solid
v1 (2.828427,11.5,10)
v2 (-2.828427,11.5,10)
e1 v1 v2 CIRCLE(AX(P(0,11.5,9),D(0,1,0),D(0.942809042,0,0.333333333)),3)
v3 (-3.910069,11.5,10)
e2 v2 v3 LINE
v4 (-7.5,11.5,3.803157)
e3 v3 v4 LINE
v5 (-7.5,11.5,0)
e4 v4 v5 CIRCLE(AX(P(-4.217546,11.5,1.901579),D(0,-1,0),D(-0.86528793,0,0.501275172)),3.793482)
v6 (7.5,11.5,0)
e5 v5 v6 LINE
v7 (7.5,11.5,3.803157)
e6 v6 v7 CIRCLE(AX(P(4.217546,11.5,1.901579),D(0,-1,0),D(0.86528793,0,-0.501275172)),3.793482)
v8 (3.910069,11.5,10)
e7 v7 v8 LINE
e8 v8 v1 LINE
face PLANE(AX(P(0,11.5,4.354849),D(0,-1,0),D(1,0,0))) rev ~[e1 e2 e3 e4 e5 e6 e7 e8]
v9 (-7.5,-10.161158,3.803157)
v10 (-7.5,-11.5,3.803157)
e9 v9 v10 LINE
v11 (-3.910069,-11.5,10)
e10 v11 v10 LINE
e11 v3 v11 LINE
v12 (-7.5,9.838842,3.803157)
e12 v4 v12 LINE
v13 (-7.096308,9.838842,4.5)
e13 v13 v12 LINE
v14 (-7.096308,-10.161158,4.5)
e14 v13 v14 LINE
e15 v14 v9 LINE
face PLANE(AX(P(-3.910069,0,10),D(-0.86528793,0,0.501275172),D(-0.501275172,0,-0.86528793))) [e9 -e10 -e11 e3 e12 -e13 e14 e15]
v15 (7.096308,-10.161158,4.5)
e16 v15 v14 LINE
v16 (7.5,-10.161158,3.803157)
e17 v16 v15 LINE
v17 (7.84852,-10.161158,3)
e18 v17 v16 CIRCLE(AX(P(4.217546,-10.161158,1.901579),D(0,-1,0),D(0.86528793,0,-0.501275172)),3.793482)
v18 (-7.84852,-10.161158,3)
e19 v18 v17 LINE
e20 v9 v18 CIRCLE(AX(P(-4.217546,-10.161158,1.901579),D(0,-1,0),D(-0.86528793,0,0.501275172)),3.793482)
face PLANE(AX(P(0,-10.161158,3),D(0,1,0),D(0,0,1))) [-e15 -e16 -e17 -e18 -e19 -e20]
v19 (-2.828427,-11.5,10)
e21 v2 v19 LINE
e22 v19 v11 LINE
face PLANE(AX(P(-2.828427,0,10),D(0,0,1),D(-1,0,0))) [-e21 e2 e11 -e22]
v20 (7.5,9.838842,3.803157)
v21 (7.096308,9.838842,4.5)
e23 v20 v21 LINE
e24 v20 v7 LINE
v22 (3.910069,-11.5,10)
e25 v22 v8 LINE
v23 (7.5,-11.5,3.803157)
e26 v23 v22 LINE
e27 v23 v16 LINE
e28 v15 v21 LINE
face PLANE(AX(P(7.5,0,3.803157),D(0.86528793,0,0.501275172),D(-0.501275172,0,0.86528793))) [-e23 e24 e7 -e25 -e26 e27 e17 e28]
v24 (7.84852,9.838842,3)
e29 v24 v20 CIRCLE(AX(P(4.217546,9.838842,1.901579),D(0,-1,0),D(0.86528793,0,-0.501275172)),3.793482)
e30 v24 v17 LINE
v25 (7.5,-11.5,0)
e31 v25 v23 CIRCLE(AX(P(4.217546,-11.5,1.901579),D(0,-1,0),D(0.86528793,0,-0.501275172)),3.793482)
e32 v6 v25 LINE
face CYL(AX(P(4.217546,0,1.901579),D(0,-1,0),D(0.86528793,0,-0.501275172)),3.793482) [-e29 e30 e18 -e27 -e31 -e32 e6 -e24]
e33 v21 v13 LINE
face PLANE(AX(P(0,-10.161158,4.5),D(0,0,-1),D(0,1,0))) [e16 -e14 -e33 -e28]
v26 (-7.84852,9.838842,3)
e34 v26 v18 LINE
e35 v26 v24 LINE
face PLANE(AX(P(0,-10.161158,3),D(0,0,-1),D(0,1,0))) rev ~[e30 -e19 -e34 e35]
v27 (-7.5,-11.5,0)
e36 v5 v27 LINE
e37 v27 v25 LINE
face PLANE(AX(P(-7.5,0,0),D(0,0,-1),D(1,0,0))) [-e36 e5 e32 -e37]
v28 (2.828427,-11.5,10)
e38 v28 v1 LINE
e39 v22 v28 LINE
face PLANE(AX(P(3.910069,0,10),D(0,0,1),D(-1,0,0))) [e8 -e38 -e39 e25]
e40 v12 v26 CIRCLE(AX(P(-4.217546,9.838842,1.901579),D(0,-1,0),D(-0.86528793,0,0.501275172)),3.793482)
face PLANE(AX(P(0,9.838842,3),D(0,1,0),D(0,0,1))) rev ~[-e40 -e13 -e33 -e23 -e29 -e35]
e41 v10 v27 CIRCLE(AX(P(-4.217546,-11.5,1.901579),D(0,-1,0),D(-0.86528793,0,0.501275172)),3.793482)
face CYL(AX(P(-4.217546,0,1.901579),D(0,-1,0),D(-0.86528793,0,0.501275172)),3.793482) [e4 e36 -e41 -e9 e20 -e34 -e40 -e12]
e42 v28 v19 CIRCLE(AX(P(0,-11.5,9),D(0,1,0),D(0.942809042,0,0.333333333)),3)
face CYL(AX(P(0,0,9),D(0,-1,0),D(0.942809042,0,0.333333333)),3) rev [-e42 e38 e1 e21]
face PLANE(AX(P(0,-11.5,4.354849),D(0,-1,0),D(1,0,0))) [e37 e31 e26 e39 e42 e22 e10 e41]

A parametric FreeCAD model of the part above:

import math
import FreeCAD as App
import Part
import Sketcher
from FreeCAD import Vector


def add_polygon(sketch, points):
    """Adds a closed chain of lines whose ends are joined by coincident constraints."""
    first, n = sketch.GeometryCount, len(points)
    for a, b in zip(points, points[1:] + points[:1]):
        sketch.addGeometry(Part.LineSegment(App.Vector(*a, 0), App.Vector(*b, 0)), False)
    for i in range(n):
        sketch.addConstraint(Sketcher.Constraint("Coincident", first + i, 2, first + (i + 1) % n, 1))

doc = App.newDocument("Part")
body = doc.addObject("PartDesign::Body", "Body")

# Sketch on XZ plane
sketch1 = doc.addObject("Sketcher::SketchObject", "Sketch")
body.addObject(sketch1)
sketch1.AttachmentSupport = (doc.XZ_Plane, [""])
sketch1.MapMode = "FlatFace"
sketch1.addGeometry(Part.ArcOfCircle(Part.Circle(Vector(0, 9, 0), Vector(0, 0, 1), 3), math.radians(160.528779), math.radians(379.471221)), False)
sketch1.addGeometry(Part.LineSegment(Vector(-2.828427, 10, 0), Vector(-3.910069, 10, 0)), False)
sketch1.addGeometry(Part.LineSegment(Vector(-3.910069, 10, 0), Vector(-7.5, 3.803157, 0)), False)
sketch1.addGeometry(Part.ArcOfCircle(Part.Circle(Vector(-4.217546, 1.901579, 0), Vector(0, 0, 1), 3.793482), math.radians(149.915599), math.radians(210.084401)), False)
sketch1.addGeometry(Part.LineSegment(Vector(-7.5, 0, 0), Vector(7.5, 0, 0)), False)
sketch1.addGeometry(Part.ArcOfCircle(Part.Circle(Vector(4.217546, 1.901579, 0), Vector(0, 0, 1), 3.793482), math.radians(-30.084401), math.radians(30.084401)), False)
sketch1.addGeometry(Part.LineSegment(Vector(7.5, 3.803157, 0), Vector(3.910069, 10, 0)), False)
sketch1.addGeometry(Part.LineSegment(Vector(3.910069, 10, 0), Vector(2.828427, 10, 0)), False)
sketch1.addConstraint(Sketcher.Constraint("Coincident", 0, 1, 1, 1))
sketch1.addConstraint(Sketcher.Constraint("Coincident", 1, 2, 2, 1))
sketch1.addConstraint(Sketcher.Constraint("Tangent", 2, 2, 3, 1))
sketch1.addConstraint(Sketcher.Constraint("Coincident", 3, 2, 4, 1))
sketch1.addConstraint(Sketcher.Constraint("Coincident", 4, 2, 5, 1))
sketch1.addConstraint(Sketcher.Constraint("Tangent", 5, 2, 6, 1))
sketch1.addConstraint(Sketcher.Constraint("Coincident", 6, 2, 7, 1))
sketch1.addConstraint(Sketcher.Constraint("Coincident", 7, 2, 0, 2))
sketch1.addConstraint(Sketcher.Constraint("Horizontal", 1))
sketch1.addConstraint(Sketcher.Constraint("Horizontal", 4))
sketch1.addConstraint(Sketcher.Constraint("Horizontal", 7))
sketch1.addConstraint(Sketcher.Constraint("Equal", 3, 5))
sketch1.addConstraint(Sketcher.Constraint("Symmetric", 3, 2, 4, 2, -1, 1))
sketch1.addConstraint(Sketcher.Constraint("Symmetric", 2, 2, 5, 2, -2))
sketch1.addConstraint(Sketcher.Constraint("Symmetric", 0, 1, 7, 2, -2))
sketch1.addConstraint(Sketcher.Constraint("Vertical", 2, 2, 3, 2))
sketch1.addConstraint(Sketcher.Constraint("Radius", 0, 3.0))
sketch1.addConstraint(Sketcher.Constraint("DistanceX", 4, 1, 4, 2, 15.0))
sketch1.addConstraint(Sketcher.Constraint("DistanceY", -1, 1, 0, 3, 9.0))
sketch1.addConstraint(Sketcher.Constraint("DistanceY", -1, 1, 0, 1, 10.0))
sketch1.addConstraint(Sketcher.Constraint("Radius", 3, 3.793482))
sketch1.addConstraint(Sketcher.Constraint("DistanceX", 1, 2, 1, 1, 1.081642))
pad1 = doc.addObject("PartDesign::Pad", "Pad")
body.addObject(pad1)
pad1.Profile = sketch1
pad1.Length = 23
pad1.Midplane = True

# Sketch on YZ plane
sketch2 = doc.addObject("Sketcher::SketchObject", "Sketch001")
body.addObject(sketch2)
sketch2.AttachmentSupport = (doc.YZ_Plane, [""])
sketch2.MapMode = "FlatFace"
add_polygon(sketch2, [(-10.161158, 4.5), (-10.161158, 3), (9.838842, 3), (9.838842, 4.5)])  # lines 0-3
sketch2.addConstraint(Sketcher.Constraint("Vertical", 0))
sketch2.addConstraint(Sketcher.Constraint("Horizontal", 1))
sketch2.addConstraint(Sketcher.Constraint("Vertical", 2))
sketch2.addConstraint(Sketcher.Constraint("Horizontal", 3))
sketch2.addConstraint(Sketcher.Constraint("DistanceX", 1, 1, 1, 2, 20.0))
sketch2.addConstraint(Sketcher.Constraint("DistanceY", 0, 2, 0, 1, 1.5))
sketch2.addConstraint(Sketcher.Constraint("DistanceY", -1, 1, 0, 2, 3.0))
sketch2.addConstraint(Sketcher.Constraint("DistanceX", 0, 2, -1, 1, 10.161158))
pocket1 = doc.addObject("PartDesign::Pocket", "Pocket")
body.addObject(pocket1)
pocket1.Profile = sketch2
pocket1.Length = 25
pocket1.Midplane = True

doc.recompute()
